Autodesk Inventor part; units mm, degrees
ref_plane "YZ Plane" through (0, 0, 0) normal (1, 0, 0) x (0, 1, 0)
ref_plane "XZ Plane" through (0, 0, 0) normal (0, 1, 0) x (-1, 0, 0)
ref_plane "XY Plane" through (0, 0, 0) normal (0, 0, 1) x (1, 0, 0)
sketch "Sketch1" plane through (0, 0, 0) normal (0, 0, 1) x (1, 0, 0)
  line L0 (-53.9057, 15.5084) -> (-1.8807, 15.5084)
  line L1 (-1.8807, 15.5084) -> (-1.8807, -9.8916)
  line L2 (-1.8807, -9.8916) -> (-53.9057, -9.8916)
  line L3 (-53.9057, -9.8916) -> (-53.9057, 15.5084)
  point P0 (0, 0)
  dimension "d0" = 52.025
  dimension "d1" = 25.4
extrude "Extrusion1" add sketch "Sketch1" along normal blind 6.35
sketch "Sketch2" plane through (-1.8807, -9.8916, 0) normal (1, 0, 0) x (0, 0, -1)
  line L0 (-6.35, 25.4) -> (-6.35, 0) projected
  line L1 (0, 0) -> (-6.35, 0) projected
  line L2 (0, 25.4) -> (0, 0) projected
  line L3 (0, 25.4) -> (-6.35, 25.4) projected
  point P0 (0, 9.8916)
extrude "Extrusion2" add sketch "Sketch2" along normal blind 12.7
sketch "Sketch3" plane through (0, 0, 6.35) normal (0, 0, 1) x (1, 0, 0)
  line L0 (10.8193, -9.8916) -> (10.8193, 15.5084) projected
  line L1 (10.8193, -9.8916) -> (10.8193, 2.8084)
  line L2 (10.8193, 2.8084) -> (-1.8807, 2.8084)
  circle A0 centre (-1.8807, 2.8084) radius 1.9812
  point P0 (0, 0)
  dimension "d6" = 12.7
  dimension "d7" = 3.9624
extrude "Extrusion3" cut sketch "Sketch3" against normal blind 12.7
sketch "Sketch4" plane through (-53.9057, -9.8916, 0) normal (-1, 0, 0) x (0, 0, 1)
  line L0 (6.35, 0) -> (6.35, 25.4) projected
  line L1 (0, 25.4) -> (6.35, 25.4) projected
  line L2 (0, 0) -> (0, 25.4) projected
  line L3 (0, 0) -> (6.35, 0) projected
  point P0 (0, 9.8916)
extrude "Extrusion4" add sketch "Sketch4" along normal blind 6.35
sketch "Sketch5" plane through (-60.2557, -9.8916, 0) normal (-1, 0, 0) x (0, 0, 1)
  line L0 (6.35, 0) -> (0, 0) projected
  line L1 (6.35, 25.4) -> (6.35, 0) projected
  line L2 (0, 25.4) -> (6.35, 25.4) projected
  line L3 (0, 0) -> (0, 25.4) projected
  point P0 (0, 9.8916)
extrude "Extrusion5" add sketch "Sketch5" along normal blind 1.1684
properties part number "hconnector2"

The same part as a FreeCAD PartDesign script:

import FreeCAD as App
import Part
import Sketcher

V = App.Vector
Q = App.Units.Quantity

doc = App.newDocument("Part")
params = doc.addObject("Spreadsheet::Sheet", "Params")
for row, (alias, value) in enumerate([
    ("sketch1_height", "1 in"),
    ("pad1_length", "0.25 in"),
    ("sketch2_width", "1 in"),
    ("sketch2_height", "0.25 in"),
    ("pad2_length", "0.5 in"),
    ("sketch3_diameter", "0.156 in"),
    ("pocket1_length", "0.5 in"),
    ("sketch4_width", "1 in"),
    ("sketch4_height", "0.25 in"),
    ("pad3_length", "0.25 in"),
    ("sketch5_width", "1 in"),
    ("sketch5_height", "0.25 in"),
    ("pad4_length", "0.046 in"),
], start=1):
    params.set(f"A{row}", alias)
    params.set(f"B{row}", "=" + value)
    params.setAlias(f"B{row}", alias)

body = doc.addObject("PartDesign::Body", "Body")

# Sketch on XY plane
sketch1 = body.newObject("Sketcher::SketchObject", "Sketch")
sketch1.AttachmentSupport = (doc.getObject("XY_Plane"), [""])
sketch1.MapMode = "FlatFace"
sketch1.addGeometry([
    Part.LineSegment(V(-2, 16, 0), V(-54, 16, 0)),
    Part.LineSegment(V(-54, 16, 0), V(-54, -10, 0)),
    Part.LineSegment(V(-54, -10, 0), V(-2, -10, 0)),
    Part.LineSegment(V(-2, -10, 0), V(-2, 16, 0)),
], False)
sketch1.addConstraint([
    Sketcher.Constraint("Coincident", 0, 2, 1, 1),
    Sketcher.Constraint("Coincident", 1, 2, 2, 1),
    Sketcher.Constraint("Coincident", 2, 2, 3, 1),
    Sketcher.Constraint("Coincident", 3, 2, 0, 1),
    Sketcher.Constraint("Horizontal", 0),
    Sketcher.Constraint("Vertical", 1),
    Sketcher.Constraint("Horizontal", 2),
    Sketcher.Constraint("Vertical", 3),
    Sketcher.Constraint("DistanceY", 1, 2, 1, 1, Q("1 in")),
    Sketcher.Constraint("DistanceX", 0, 2, 0, 1, Q("52.025 mm")),
    Sketcher.Constraint("DistanceX", 0, 2, -1, 1, Q("53.9057 mm")),
    Sketcher.Constraint("DistanceY", -1, 1, 0, 2, Q("15.5084 mm")),
])
sketch1.setExpression("Constraints[8]", "Params.sketch1_height")
pad1 = body.newObject("PartDesign::Pad", "Pad")
pad1.Profile = sketch1
pad1.setExpression("Length", "Params.pad1_length")

# Sketch on YZ plane
sketch2 = body.newObject("Sketcher::SketchObject", "Sketch001")
sketch2.AttachmentSupport = (doc.getObject("YZ_Plane"), [""])
sketch2.MapMode = "FlatFace"
sketch2.AttachmentOffset = App.Placement(V(0, 0, -1.8807), App.Rotation())
sketch2.addGeometry([
    Part.LineSegment(V(16, 0, 0), V(16, 6, 0)),
    Part.LineSegment(V(16, 6, 0), V(-10, 6, 0)),
    Part.LineSegment(V(-10, 6, 0), V(-10, 0, 0)),
    Part.LineSegment(V(-10, 0, 0), V(16, 0, 0)),
], False)
sketch2.addConstraint([
    Sketcher.Constraint("Coincident", 0, 2, 1, 1),
    Sketcher.Constraint("Coincident", 1, 2, 2, 1),
    Sketcher.Constraint("Coincident", 2, 2, 3, 1),
    Sketcher.Constraint("Coincident", 3, 2, 0, 1),
    Sketcher.Constraint("Vertical", 0),
    Sketcher.Constraint("Horizontal", 1),
    Sketcher.Constraint("Vertical", 2),
    Sketcher.Constraint("Horizontal", 3),
    Sketcher.Constraint("PointOnObject", 2, 2, -1),
    Sketcher.Constraint("DistanceX", 1, 2, 1, 1, Q("1 in")),
    Sketcher.Constraint("DistanceY", 0, 1, 0, 2, Q("0.25 in")),
    Sketcher.Constraint("DistanceX", -1, 1, 0, 2, Q("15.5084 mm")),
])
sketch2.setExpression("Constraints[9]", "Params.sketch2_width")
sketch2.setExpression("Constraints[10]", "Params.sketch2_height")
pad2 = body.newObject("PartDesign::Pad", "Pad001")
pad2.Profile = sketch2
pad2.setExpression("Length", "Params.pad2_length")

# Sketch on XY plane
sketch3 = body.newObject("Sketcher::SketchObject", "Sketch002")
sketch3.AttachmentSupport = (doc.getObject("XY_Plane"), [""])
sketch3.MapMode = "FlatFace"
sketch3.AttachmentOffset = App.Placement(V(0, 0, 0.25 * 25.4), App.Rotation())
sketch3.addGeometry(Part.Circle(V(-1.9, 2.8, 0), V(0, 0, 1), 2), False)
sketch3.addConstraint([
    Sketcher.Constraint("Diameter", 0, Q("0.156 in")),
    Sketcher.Constraint("DistanceX", 0, 3, -1, 1, Q("1.8807 mm")),
    Sketcher.Constraint("DistanceY", -1, 1, 0, 3, Q("2.8084 mm")),
])
sketch3.setExpression("Constraints[0]", "Params.sketch3_diameter")
pocket1 = body.newObject("PartDesign::Pocket", "Pocket")
pocket1.Profile = sketch3
pocket1.setExpression("Length", "Params.pocket1_length")

# Sketch on YZ plane
sketch4 = body.newObject("Sketcher::SketchObject", "Sketch003")
sketch4.AttachmentSupport = (doc.getObject("YZ_Plane"), [""])
sketch4.MapMode = "FlatFace"
sketch4.AttachmentOffset = App.Placement(V(0, 0, -53.9057), App.Rotation())
sketch4.addGeometry([
    Part.LineSegment(V(-10, 0, 0), V(-10, 6, 0)),
    Part.LineSegment(V(-10, 6, 0), V(16, 6, 0)),
    Part.LineSegment(V(16, 6, 0), V(16, 0, 0)),
    Part.LineSegment(V(16, 0, 0), V(-10, 0, 0)),
], False)
sketch4.addConstraint([
    Sketcher.Constraint("Coincident", 0, 2, 1, 1),
    Sketcher.Constraint("Coincident", 1, 2, 2, 1),
    Sketcher.Constraint("Coincident", 2, 2, 3, 1),
    Sketcher.Constraint("Coincident", 3, 2, 0, 1),
    Sketcher.Constraint("Vertical", 0),
    Sketcher.Constraint("Horizontal", 1),
    Sketcher.Constraint("Vertical", 2),
    Sketcher.Constraint("Horizontal", 3),
    Sketcher.Constraint("PointOnObject", 2, 2, -1),
    Sketcher.Constraint("DistanceX", 1, 1, 1, 2, Q("1 in")),
    Sketcher.Constraint("DistanceY", 0, 1, 0, 2, Q("0.25 in")),
    Sketcher.Constraint("DistanceX", 0, 2, -1, 1, Q("9.8916 mm")),
])
sketch4.setExpression("Constraints[9]", "Params.sketch4_width")
sketch4.setExpression("Constraints[10]", "Params.sketch4_height")
pad3 = body.newObject("PartDesign::Pad", "Pad002")
pad3.Profile = sketch4
pad3.setExpression("Length", "Params.pad3_length")
pad3.Reversed = True

# Sketch on YZ plane
sketch5 = body.newObject("Sketcher::SketchObject", "Sketch004")
sketch5.AttachmentSupport = (doc.getObject("YZ_Plane"), [""])
sketch5.MapMode = "FlatFace"
sketch5.AttachmentOffset = App.Placement(V(0, 0, -60.2557), App.Rotation())
sketch5.addGeometry([
    Part.LineSegment(V(-10, 0, 0), V(-10, 6, 0)),
    Part.LineSegment(V(-10, 6, 0), V(16, 6, 0)),
    Part.LineSegment(V(16, 6, 0), V(16, 0, 0)),
    Part.LineSegment(V(16, 0, 0), V(-10, 0, 0)),
], False)
sketch5.addConstraint([
    Sketcher.Constraint("Coincident", 0, 2, 1, 1),
    Sketcher.Constraint("Coincident", 1, 2, 2, 1),
    Sketcher.Constraint("Coincident", 2, 2, 3, 1),
    Sketcher.Constraint("Coincident", 3, 2, 0, 1),
    Sketcher.Constraint("Vertical", 0),
    Sketcher.Constraint("Horizontal", 1),
    Sketcher.Constraint("Vertical", 2),
    Sketcher.Constraint("Horizontal", 3),
    Sketcher.Constraint("PointOnObject", 2, 2, -1),
    Sketcher.Constraint("DistanceX", 1, 1, 1, 2, Q("1 in")),
    Sketcher.Constraint("DistanceY", 0, 1, 0, 2, Q("0.25 in")),
    Sketcher.Constraint("DistanceX", 0, 2, -1, 1, Q("9.8916 mm")),
])
sketch5.setExpression("Constraints[9]", "Params.sketch5_width")
sketch5.setExpression("Constraints[10]", "Params.sketch5_height")
pad4 = body.newObject("PartDesign::Pad", "Pad003")
pad4.Profile = sketch5
pad4.setExpression("Length", "Params.pad4_length")
pad4.Reversed = True

doc.recompute()
